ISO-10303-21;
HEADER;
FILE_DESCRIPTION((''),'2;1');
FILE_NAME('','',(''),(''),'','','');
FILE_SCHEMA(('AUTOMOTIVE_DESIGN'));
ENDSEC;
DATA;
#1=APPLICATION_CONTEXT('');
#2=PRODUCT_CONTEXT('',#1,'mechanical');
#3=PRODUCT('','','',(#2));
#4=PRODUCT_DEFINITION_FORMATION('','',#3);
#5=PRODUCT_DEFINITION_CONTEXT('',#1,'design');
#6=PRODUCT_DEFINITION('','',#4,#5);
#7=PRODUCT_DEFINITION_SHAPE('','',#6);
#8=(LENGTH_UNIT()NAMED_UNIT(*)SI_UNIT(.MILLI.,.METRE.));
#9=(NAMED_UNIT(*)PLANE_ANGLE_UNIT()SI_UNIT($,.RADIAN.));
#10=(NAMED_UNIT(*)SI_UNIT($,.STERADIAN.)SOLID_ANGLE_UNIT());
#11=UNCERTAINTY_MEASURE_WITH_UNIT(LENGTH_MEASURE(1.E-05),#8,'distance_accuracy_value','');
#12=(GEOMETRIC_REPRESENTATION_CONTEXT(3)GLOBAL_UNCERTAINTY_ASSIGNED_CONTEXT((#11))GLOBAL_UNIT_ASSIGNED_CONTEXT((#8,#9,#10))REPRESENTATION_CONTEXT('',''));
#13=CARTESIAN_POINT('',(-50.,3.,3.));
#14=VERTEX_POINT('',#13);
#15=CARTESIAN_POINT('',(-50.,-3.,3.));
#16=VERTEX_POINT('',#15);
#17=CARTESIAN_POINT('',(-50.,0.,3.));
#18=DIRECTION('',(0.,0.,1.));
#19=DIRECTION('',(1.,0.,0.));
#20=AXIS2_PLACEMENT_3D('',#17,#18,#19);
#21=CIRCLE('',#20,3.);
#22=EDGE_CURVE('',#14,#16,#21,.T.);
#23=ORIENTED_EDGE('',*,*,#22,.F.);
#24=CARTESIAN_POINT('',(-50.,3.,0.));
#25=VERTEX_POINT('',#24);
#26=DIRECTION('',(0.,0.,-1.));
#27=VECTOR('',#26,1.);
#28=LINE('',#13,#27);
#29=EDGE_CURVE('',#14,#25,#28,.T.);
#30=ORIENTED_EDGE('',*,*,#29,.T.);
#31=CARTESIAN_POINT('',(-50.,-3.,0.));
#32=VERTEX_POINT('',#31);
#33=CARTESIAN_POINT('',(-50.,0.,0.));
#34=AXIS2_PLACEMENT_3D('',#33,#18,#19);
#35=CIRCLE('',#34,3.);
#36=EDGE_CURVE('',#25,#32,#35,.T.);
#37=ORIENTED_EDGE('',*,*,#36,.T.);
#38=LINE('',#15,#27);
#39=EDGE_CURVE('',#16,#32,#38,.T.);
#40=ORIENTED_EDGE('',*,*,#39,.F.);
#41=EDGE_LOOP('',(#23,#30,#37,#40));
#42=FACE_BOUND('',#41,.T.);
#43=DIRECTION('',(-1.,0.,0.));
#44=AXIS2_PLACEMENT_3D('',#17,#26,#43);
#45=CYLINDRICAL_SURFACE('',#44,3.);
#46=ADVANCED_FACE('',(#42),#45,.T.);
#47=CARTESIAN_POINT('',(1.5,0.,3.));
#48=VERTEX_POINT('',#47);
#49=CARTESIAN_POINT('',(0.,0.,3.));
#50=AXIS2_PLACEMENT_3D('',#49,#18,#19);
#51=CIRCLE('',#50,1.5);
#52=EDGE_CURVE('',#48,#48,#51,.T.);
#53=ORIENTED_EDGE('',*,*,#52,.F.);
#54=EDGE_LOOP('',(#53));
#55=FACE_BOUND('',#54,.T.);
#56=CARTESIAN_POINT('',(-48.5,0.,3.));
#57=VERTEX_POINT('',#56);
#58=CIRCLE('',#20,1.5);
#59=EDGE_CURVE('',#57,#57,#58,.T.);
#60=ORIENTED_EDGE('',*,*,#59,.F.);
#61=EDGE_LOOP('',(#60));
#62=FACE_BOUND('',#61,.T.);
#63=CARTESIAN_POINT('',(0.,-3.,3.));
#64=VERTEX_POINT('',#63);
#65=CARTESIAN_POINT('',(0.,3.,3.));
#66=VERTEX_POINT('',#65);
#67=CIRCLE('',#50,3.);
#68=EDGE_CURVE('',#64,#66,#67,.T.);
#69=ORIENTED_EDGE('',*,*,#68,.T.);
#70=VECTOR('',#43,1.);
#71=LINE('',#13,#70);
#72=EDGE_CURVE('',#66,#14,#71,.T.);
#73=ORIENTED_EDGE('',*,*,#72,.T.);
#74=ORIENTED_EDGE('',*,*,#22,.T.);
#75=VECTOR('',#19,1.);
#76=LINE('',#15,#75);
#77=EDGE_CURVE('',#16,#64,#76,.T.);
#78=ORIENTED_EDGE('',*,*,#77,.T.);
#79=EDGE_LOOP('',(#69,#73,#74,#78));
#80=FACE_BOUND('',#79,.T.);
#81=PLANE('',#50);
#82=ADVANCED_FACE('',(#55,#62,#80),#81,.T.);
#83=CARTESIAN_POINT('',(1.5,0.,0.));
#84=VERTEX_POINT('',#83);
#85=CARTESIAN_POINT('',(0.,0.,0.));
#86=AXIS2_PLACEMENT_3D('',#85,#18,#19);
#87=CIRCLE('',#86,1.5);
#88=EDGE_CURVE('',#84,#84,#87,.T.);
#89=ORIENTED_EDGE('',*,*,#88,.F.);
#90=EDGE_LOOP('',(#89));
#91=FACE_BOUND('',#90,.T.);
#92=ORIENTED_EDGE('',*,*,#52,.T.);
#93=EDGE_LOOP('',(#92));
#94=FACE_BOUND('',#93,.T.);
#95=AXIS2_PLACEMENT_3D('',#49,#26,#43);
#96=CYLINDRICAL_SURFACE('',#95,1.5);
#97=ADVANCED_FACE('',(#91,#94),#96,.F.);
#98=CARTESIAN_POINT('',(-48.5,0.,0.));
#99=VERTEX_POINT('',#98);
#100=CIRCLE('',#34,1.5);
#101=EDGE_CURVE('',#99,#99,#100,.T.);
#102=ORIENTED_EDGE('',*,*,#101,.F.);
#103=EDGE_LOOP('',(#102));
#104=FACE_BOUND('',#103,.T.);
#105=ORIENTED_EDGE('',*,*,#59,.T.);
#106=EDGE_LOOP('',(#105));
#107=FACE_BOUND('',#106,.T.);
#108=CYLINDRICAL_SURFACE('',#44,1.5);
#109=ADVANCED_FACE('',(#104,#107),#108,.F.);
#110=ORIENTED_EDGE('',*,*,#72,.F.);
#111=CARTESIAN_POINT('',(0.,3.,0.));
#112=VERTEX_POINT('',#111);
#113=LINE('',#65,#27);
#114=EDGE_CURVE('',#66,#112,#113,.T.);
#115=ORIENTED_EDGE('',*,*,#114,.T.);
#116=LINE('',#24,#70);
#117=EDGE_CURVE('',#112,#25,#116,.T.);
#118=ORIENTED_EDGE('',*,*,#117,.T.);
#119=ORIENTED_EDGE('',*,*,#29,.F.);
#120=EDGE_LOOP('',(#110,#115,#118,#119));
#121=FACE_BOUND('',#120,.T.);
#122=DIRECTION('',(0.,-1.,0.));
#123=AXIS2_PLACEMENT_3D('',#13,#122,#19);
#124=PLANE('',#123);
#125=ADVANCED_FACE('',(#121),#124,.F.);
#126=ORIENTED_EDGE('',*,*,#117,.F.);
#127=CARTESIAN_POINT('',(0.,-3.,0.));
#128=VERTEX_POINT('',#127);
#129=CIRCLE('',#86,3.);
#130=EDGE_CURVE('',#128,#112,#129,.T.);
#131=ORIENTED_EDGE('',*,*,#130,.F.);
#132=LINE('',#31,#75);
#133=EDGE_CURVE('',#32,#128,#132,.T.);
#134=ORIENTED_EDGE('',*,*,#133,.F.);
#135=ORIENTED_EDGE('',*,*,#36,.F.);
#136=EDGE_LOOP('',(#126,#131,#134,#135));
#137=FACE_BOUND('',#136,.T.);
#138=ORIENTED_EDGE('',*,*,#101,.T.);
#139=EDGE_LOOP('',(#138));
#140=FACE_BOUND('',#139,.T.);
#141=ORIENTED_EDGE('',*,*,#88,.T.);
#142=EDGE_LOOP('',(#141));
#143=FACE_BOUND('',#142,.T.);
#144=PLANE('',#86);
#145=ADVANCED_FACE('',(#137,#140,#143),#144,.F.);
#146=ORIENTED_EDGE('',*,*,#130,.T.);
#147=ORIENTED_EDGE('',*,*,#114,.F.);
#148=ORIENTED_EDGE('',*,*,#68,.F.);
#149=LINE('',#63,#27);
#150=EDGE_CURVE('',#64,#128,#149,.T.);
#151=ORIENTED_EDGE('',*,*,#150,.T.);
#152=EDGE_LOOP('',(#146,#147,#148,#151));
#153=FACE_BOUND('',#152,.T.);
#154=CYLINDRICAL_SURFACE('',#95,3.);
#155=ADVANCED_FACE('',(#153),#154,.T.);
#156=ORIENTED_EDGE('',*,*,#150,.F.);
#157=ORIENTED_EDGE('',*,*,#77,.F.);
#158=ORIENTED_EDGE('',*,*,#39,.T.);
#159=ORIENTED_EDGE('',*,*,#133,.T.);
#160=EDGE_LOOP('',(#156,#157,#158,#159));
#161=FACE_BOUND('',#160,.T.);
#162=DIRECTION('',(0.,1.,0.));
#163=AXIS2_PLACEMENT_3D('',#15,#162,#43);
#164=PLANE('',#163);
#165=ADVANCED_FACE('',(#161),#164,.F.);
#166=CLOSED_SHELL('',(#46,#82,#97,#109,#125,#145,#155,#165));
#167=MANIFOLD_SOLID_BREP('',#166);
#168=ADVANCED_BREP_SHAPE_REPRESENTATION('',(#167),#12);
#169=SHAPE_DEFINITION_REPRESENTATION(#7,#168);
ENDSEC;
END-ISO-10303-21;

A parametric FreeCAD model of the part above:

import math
import FreeCAD as App
import Part
import Sketcher
Q = App.Units.Quantity

doc = App.newDocument("Part")
body = doc.addObject("PartDesign::Body", "Body")

sketch1 = doc.addObject("Sketcher::SketchObject", "Sketch")
body.addObject(sketch1)
sketch1.AttachmentSupport = (doc.XY_Plane, [""])
sketch1.MapMode = "FlatFace"
sketch1.addGeometry(Part.LineSegment(App.Vector(0, 3, 0), App.Vector(-50, 3, 0)), False)
sketch1.addGeometry(Part.ArcOfCircle(Part.Circle(App.Vector(-50, 0, 0), App.Vector(0, 0, 1), 3), math.radians(90), math.radians(270)), False)
sketch1.addGeometry(Part.LineSegment(App.Vector(-50, -3, 0), App.Vector(0, -3, 0)), False)
sketch1.addGeometry(Part.ArcOfCircle(Part.Circle(App.Vector(0, 0, 0), App.Vector(0, 0, 1), 3), math.radians(-90), math.radians(90)), False)
sketch1.addGeometry(Part.Circle(App.Vector(0, 0, 0), App.Vector(0, 0, 1), 1.5), False)
sketch1.addGeometry(Part.Circle(App.Vector(-50, 0, 0), App.Vector(0, 0, 1), 1.5), False)
sketch1.addConstraint(Sketcher.Constraint("Tangent", 0, 2, 1, 1))
sketch1.addConstraint(Sketcher.Constraint("Tangent", 1, 2, 2, 1))
sketch1.addConstraint(Sketcher.Constraint("Tangent", 2, 2, 3, 1))
sketch1.addConstraint(Sketcher.Constraint("Tangent", 3, 2, 0, 1))
sketch1.addConstraint(Sketcher.Constraint("Horizontal", 0))
sketch1.addConstraint(Sketcher.Constraint("Horizontal", 2))
sketch1.addConstraint(Sketcher.Constraint("Coincident", 3, 3, -1, 1))
sketch1.addConstraint(Sketcher.Constraint("Coincident", 4, 3, -1, 1))
sketch1.addConstraint(Sketcher.Constraint("Coincident", 5, 3, 1, 3))
sketch1.addConstraint(Sketcher.Constraint("Equal", 4, 5))
sketch1.addConstraint(Sketcher.Constraint("Diameter", 4, Q("3 mm")))
sketch1.addConstraint(Sketcher.Constraint("Radius", 1, Q("3 mm")))
sketch1.addConstraint(Sketcher.Constraint("DistanceX", 0, 2, 0, 1, Q("50 mm")))
pad1 = doc.addObject("PartDesign::Pad", "Pad")
body.addObject(pad1)
pad1.Profile = sketch1
pad1.Length = 3

doc.recompute()
